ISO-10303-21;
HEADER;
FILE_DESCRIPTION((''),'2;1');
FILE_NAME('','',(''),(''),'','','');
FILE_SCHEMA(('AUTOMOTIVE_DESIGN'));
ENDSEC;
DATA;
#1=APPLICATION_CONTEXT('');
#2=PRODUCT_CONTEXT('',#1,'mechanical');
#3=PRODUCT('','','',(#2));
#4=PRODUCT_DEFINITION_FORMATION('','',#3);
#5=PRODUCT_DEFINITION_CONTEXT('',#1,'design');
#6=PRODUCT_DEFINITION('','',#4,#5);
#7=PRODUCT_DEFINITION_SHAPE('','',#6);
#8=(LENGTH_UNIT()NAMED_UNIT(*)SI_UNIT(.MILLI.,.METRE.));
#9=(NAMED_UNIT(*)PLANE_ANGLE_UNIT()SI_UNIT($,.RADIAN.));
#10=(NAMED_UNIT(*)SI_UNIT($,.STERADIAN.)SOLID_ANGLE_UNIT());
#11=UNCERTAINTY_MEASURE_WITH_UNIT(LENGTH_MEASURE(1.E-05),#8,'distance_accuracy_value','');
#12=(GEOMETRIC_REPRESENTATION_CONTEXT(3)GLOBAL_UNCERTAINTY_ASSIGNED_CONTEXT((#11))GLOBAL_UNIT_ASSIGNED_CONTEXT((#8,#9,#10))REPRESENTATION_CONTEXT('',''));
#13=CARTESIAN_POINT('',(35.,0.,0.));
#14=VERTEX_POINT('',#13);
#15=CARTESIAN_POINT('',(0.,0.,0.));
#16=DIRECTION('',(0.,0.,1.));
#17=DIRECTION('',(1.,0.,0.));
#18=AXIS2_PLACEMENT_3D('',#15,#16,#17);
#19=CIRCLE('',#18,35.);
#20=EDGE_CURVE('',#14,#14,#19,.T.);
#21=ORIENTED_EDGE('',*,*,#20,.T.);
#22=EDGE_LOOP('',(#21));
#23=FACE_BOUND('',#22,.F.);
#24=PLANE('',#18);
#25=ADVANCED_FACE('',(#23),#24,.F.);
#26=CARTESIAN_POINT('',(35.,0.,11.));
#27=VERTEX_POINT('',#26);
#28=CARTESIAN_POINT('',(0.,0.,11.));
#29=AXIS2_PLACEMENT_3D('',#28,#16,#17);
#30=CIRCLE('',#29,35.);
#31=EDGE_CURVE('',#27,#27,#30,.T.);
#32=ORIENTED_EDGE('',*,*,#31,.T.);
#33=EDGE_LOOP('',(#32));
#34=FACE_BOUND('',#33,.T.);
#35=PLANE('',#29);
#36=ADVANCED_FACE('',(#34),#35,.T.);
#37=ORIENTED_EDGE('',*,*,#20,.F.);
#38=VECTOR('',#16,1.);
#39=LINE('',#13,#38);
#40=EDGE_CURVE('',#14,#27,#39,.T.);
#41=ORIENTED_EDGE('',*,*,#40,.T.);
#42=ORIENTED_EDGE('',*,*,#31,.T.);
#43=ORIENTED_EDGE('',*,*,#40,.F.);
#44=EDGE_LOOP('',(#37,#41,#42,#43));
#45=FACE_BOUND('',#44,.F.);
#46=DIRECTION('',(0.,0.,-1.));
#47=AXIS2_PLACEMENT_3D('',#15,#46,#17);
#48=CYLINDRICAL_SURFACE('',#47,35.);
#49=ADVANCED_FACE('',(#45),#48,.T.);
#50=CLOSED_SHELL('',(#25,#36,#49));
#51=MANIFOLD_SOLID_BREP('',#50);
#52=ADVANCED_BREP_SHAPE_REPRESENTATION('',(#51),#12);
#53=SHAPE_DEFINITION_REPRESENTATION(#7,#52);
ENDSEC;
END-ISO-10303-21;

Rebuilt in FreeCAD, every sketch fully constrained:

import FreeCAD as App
import Part
import Sketcher
Q = App.Units.Quantity

doc = App.newDocument("Part")
body = doc.addObject("PartDesign::Body", "Body")

sketch1 = doc.addObject("Sketcher::SketchObject", "Sketch")
body.addObject(sketch1)
sketch1.AttachmentSupport = (doc.XY_Plane, [""])
sketch1.MapMode = "FlatFace"
sketch1.addGeometry(Part.Circle(App.Vector(0, 0, 0), App.Vector(0, 0, 1), 35), False)
sketch1.addConstraint(Sketcher.Constraint("Coincident", 0, 3, -1, 1))
sketch1.addConstraint(Sketcher.Constraint("Diameter", 0, Q("70 mm")))
pad1 = doc.addObject("PartDesign::Pad", "Pad")
body.addObject(pad1)
pad1.Profile = sketch1
pad1.Length = 11

doc.recompute()
